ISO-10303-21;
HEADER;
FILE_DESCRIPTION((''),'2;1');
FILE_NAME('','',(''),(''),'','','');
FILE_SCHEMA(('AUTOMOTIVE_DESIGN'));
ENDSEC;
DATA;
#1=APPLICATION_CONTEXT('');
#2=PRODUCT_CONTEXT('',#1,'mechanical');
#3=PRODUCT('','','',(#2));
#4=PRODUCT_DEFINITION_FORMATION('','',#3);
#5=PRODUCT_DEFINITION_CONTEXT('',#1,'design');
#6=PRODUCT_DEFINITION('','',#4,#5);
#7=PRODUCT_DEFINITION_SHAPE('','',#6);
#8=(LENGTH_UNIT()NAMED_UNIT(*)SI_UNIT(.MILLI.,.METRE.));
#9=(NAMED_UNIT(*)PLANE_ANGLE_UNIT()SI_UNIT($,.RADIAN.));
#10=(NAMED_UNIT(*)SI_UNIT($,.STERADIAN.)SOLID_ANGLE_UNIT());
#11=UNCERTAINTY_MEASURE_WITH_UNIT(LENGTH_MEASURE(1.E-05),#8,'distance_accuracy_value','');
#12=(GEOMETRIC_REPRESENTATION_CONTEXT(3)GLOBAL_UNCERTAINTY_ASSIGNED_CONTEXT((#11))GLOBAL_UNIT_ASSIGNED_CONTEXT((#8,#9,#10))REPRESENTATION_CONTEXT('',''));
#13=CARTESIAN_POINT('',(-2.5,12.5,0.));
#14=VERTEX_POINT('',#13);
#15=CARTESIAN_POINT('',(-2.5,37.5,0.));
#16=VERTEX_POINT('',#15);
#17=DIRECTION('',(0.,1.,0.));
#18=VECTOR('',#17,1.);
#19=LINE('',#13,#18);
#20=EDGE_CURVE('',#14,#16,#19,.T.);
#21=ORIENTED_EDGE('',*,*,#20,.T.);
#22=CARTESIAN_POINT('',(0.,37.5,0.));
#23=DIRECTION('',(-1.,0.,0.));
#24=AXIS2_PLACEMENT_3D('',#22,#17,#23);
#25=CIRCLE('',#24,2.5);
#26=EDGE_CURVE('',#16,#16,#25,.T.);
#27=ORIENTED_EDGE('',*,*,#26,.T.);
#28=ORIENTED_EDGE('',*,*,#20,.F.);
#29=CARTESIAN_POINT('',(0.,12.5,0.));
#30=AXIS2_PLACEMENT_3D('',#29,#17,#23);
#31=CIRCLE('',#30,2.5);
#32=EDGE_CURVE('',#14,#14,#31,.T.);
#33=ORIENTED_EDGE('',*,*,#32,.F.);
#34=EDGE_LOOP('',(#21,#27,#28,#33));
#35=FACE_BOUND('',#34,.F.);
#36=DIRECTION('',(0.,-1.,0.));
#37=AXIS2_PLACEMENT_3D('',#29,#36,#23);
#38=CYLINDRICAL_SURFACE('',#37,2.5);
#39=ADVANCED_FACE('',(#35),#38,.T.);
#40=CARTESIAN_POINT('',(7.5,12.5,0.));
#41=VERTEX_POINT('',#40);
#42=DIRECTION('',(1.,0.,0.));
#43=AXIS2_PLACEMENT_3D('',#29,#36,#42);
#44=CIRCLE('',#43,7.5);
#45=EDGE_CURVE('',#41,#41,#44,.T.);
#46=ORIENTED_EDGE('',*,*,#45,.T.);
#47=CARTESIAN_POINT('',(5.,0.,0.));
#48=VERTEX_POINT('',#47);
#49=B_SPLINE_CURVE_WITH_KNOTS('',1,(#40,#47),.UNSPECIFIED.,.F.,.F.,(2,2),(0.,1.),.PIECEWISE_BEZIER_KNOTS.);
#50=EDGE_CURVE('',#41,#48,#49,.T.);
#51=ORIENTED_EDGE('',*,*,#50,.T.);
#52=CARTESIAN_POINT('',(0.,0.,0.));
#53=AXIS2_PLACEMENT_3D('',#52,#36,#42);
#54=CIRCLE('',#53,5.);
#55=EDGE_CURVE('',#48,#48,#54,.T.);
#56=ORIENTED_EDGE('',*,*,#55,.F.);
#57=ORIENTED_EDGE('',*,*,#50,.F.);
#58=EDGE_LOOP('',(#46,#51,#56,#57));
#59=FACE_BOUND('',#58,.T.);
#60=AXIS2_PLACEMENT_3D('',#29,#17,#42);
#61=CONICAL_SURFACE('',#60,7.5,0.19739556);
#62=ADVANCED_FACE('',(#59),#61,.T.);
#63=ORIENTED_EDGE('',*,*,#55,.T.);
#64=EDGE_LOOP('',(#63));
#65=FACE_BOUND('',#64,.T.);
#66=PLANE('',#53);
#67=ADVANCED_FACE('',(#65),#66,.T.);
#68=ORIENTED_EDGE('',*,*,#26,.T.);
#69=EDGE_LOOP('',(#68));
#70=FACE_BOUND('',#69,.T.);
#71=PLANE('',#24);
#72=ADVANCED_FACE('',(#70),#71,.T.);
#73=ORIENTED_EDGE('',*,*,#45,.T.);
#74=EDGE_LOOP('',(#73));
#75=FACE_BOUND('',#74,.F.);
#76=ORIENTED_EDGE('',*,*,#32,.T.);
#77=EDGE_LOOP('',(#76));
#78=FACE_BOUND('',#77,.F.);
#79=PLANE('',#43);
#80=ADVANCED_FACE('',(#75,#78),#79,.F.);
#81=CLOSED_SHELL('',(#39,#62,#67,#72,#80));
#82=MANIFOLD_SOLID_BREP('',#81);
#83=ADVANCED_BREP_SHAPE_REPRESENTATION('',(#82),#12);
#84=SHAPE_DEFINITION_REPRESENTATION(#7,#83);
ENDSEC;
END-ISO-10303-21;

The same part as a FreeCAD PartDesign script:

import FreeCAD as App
import Part
import Sketcher

doc = App.newDocument("Part")
body = doc.addObject("PartDesign::Body", "Body")

sketch1 = body.newObject("Sketcher::SketchObject", "Sketch")
sketch1.AttachmentSupport = (doc.getObject("XZ_Plane"), [""])
sketch1.MapMode = "FlatFace"
sketch1.AttachmentOffset = App.Placement(App.Vector(0, 0, -12.5), App.Rotation())
sketch1.addGeometry(Part.Circle(App.Vector(0, 0, 0), App.Vector(0, 0, 1), 8), False)
sketch1.addConstraint(Sketcher.Constraint("Coincident", 0, 3, -1, 1))
sketch1.addConstraint(Sketcher.Constraint("Diameter", 0, 15.0))

sketch2 = body.newObject("Sketcher::SketchObject", "Sketch001")
sketch2.AttachmentSupport = (doc.getObject("XZ_Plane"), [""])
sketch2.MapMode = "FlatFace"
sketch2.addGeometry(Part.Circle(App.Vector(0, 0, 0), App.Vector(0, 0, 1), 5), False)
sketch2.addConstraint(Sketcher.Constraint("Coincident", 0, 3, -1, 1))
sketch2.addConstraint(Sketcher.Constraint("Diameter", 0, 10.0))

additiveloft = body.newObject("PartDesign::AdditiveLoft", "AdditiveLoft")
additiveloft.Profile = sketch1
additiveloft.Sections = [sketch2]

sketch3 = body.newObject("Sketcher::SketchObject", "Sketch002")
sketch3.AttachmentSupport = (doc.getObject("XZ_Plane"), [""])
sketch3.MapMode = "FlatFace"
sketch3.AttachmentOffset = App.Placement(App.Vector(0, 0, -12.5), App.Rotation())
sketch3.addGeometry(Part.Circle(App.Vector(0, 0, 0), App.Vector(0, 0, 1), 2.5), False)
sketch3.addConstraint(Sketcher.Constraint("Coincident", 0, 3, -1, 1))
sketch3.addConstraint(Sketcher.Constraint("Diameter", 0, 5.0))
pad1 = body.newObject("PartDesign::Pad", "Pad")
pad1.Profile = sketch3
pad1.Length = 25
pad1.Reversed = True

doc.recompute()
